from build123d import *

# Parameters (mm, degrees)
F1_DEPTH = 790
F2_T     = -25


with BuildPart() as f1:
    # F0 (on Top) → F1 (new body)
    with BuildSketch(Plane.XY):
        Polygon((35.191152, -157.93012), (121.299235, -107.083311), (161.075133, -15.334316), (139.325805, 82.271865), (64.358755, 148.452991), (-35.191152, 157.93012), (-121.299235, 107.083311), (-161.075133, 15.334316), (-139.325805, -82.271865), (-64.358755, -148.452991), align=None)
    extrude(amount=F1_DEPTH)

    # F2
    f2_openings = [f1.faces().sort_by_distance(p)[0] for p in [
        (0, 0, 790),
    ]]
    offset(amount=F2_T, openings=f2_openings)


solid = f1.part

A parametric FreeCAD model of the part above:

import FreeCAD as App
import Part
import Sketcher
from FreeCAD import Vector


def faces_at(feature, points):
    """Names of the faces that lie closest to the given points."""
    faces = feature.Shape.Faces
    near = lambda p: min(range(len(faces)), key=lambda i: faces[i].distToShape(Part.Vertex(*p))[0])
    return sorted({f"Face{near(p) + 1}" for p in points})


def add_polygon(sketch, points):
    """Adds a closed chain of lines whose ends are joined by coincident constraints."""
    first, n = sketch.GeometryCount, len(points)
    for a, b in zip(points, points[1:] + points[:1]):
        sketch.addGeometry(Part.LineSegment(App.Vector(*a, 0), App.Vector(*b, 0)), False)
    for i in range(n):
        sketch.addConstraint(Sketcher.Constraint("Coincident", first + i, 2, first + (i + 1) % n, 1))

doc = App.newDocument("Part")
body = doc.addObject("PartDesign::Body", "Body")

sketch1 = body.newObject("Sketcher::SketchObject", "Sketch")
sketch1.AttachmentSupport = (doc.getObject("XY_Plane"), [""])
sketch1.MapMode = "FlatFace"
add_polygon(sketch1, [(35, -158), (121, -107), (161, -15), (139, 82), (64, 148), (-35, 158), (-121, 107), (-161, 15), (-139, -82), (-64, -148)])
sketch1.addConstraint(Sketcher.Constraint("Symmetric", 0, 2, 5, 2, -1, 1))
sketch1.addConstraint(Sketcher.Constraint("Symmetric", 1, 2, 6, 2, -1, 1))
sketch1.addConstraint(Sketcher.Constraint("Symmetric", 2, 2, 7, 2, -1, 1))
sketch1.addConstraint(Sketcher.Constraint("Symmetric", 3, 2, 8, 2, -1, 1))
sketch1.addConstraint(Sketcher.Constraint("Symmetric", 4, 2, 9, 2, -1, 1))
sketch1.addConstraint(Sketcher.Constraint("Equal", 0, 1))
sketch1.addConstraint(Sketcher.Constraint("Equal", 1, 2))
sketch1.addConstraint(Sketcher.Constraint("Equal", 2, 3))
sketch1.addConstraint(Sketcher.Constraint("Equal", 3, 4))
sketch1.addConstraint(Sketcher.Constraint("Distance", 0, 100.0))
sketch1.addConstraint(Sketcher.Constraint("DistanceY", 0, 2, 3, 2, 255.536302))
sketch1.addConstraint(Sketcher.Constraint("DistanceY", 0, 2, -1, 1, 107.083311))
sketch1.addConstraint(Sketcher.Constraint("DistanceY", -1, 1, 4, 2, 157.93012))
sketch1.addConstraint(Sketcher.Constraint("DistanceY", 1, 2, 2, 2, 97.606181))
sketch1.addConstraint(Sketcher.Constraint("DistanceX", 0, 2, 2, 2, 18.02657))
pad1 = body.newObject("PartDesign::Pad", "Pad")
pad1.Profile = sketch1
pad1.Length = 790
doc.recompute()

thickness = body.newObject("PartDesign::Thickness", "Thickness")
thickness.Base = (pad1, faces_at(pad1, [(0, 0, 790)]))
thickness.Value = 25
thickness.Reversed = True
thickness.Join = "Arc"

doc.recompute()
